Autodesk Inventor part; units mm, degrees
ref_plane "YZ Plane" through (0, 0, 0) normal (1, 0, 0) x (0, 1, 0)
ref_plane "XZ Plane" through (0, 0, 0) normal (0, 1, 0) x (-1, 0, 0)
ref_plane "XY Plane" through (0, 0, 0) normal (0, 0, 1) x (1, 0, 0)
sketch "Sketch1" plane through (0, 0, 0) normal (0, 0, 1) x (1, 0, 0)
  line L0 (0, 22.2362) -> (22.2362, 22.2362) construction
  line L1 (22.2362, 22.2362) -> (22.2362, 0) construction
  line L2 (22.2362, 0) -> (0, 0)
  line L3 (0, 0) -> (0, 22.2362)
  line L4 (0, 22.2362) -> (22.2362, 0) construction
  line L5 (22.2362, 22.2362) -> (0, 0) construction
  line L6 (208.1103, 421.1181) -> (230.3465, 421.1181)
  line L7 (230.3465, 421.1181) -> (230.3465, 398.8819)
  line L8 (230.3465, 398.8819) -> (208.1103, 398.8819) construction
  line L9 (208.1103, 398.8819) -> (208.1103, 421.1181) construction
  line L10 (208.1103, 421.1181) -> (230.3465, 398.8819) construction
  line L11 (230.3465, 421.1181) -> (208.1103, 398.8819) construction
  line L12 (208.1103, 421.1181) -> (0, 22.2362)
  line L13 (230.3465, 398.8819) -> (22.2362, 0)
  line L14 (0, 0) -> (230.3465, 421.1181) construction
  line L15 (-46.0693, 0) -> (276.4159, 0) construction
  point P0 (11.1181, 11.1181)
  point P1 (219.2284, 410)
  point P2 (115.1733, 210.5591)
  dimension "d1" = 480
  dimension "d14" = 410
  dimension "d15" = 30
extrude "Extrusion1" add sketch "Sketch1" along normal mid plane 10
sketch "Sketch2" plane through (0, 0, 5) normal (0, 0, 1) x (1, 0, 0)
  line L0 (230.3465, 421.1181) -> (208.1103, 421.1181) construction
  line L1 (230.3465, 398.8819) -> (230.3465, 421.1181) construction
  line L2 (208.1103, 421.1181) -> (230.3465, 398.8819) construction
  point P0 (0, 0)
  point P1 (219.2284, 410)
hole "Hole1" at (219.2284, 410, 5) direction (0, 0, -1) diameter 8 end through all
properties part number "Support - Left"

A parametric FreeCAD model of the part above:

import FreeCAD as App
import Part
import Sketcher
Q = App.Units.Quantity


def add_polygon(sketch, points):
    """Adds a closed chain of lines whose ends are joined by coincident constraints."""
    first, n = sketch.GeometryCount, len(points)
    for a, b in zip(points, points[1:] + points[:1]):
        sketch.addGeometry(Part.LineSegment(App.Vector(*a, 0), App.Vector(*b, 0)), False)
    for i in range(n):
        sketch.addConstraint(Sketcher.Constraint("Coincident", first + i, 2, first + (i + 1) % n, 1))

doc = App.newDocument("Part")
params = doc.addObject("Spreadsheet::Sheet", "Params")
for row, (alias, value) in enumerate([
    ("pad1_length", "10 mm"),
    ("sketch2_diameter", "8 mm"),
    ("hole_diameter", "8 mm"),
], start=1):
    params.set(f"A{row}", alias)
    params.set(f"B{row}", "=" + value)
    params.setAlias(f"B{row}", alias)

body = doc.addObject("PartDesign::Body", "Body")

sketch1 = body.newObject("Sketcher::SketchObject", "Sketch")
sketch1.AttachmentSupport = (doc.getObject("XY_Plane"), [""])
sketch1.MapMode = "FlatFace"
add_polygon(sketch1, [(0, 0), (22, 0), (230, 399), (230, 421), (208, 421), (0, 22)])
sketch1.addConstraint([
    Sketcher.Constraint("Horizontal", 0),
    Sketcher.Constraint("Vertical", 2),
    Sketcher.Constraint("Horizontal", 3),
    Sketcher.Constraint("Vertical", 5),
    Sketcher.Constraint("Coincident", 5, 2, -1, 1),
    Sketcher.Constraint("Parallel", 1, 4),
    Sketcher.Constraint("Equal", 0, 3),
    Sketcher.Constraint("Equal", 3, 2),
    Sketcher.Constraint("DistanceX", 0, 1, 0, 2, Q("22.2362 mm")),
    Sketcher.Constraint("DistanceY", -1, 1, 1, 2, Q("398.882 mm")),
    Sketcher.Constraint("DistanceX", 0, 2, 3, 2, Q("185.874 mm")),
])
pad1 = body.newObject("PartDesign::Pad", "Pad")
pad1.Profile = sketch1
pad1.setExpression("Length", "Params.pad1_length")
pad1.Midplane = True

sketch2 = body.newObject("Sketcher::SketchObject", "Sketch001")
sketch2.AttachmentSupport = (doc.getObject("XY_Plane"), [""])
sketch2.MapMode = "FlatFace"
sketch2.AttachmentOffset = App.Placement(App.Vector(0, 0, 5), App.Rotation())
sketch2.addGeometry(Part.Circle(App.Vector(219.2, 410, 0), App.Vector(0, 0, 1), 4), False)
sketch2.addConstraint([
    Sketcher.Constraint("Diameter", 0, Q("8 mm")),
    Sketcher.Constraint("DistanceY", -1, 1, 0, 3, Q("410 mm")),
    Sketcher.Constraint("DistanceX", -1, 1, 0, 3, Q("219.2284 mm")),
])
sketch2.setExpression("Constraints[0]", "Params.sketch2_diameter")
doc.recompute()
hole = body.newObject("PartDesign::Hole", "Hole")
hole.Profile = sketch2
hole.ThreadType = "None"
hole.setExpression("Diameter", "Params.hole_diameter")
hole.DepthType = "ThroughAll"

doc.recompute()
